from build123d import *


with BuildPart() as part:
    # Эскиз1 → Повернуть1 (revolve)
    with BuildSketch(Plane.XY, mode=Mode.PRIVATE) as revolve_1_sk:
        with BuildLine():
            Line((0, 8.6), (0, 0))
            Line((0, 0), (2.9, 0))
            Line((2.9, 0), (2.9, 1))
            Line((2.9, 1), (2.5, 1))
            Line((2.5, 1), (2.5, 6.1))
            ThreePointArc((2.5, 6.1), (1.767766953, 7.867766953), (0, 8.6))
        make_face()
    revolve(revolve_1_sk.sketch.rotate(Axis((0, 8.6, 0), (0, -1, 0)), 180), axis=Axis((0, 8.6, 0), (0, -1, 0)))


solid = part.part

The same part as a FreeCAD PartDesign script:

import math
import FreeCAD as App
import Part
import Sketcher
from FreeCAD import Vector

doc = App.newDocument("Part")
body = doc.addObject("PartDesign::Body", "Body")

# Sketch on XY plane
sketch1 = body.newObject("Sketcher::SketchObject", "Sketch")
sketch1.AttachmentSupport = (doc.getObject("XY_Plane"), [""])
sketch1.MapMode = "FlatFace"
sketch1.addGeometry([
    Part.LineSegment(Vector(0, 8.6, 0), Vector(0, 0, 0)),  # 0
    Part.LineSegment(Vector(0, 0, 0), Vector(2.9, 0, 0)),  # 1
    Part.LineSegment(Vector(2.9, 0, 0), Vector(2.9, 1, 0)),  # 2
    Part.LineSegment(Vector(2.9, 1, 0), Vector(2.5, 1, 0)),  # 3
    Part.LineSegment(Vector(2.5, 1, 0), Vector(2.5, 6.1, 0)),  # 4
    Part.ArcOfCircle(Part.Circle(Vector(0, 6.1, 0), Vector(0, 0, 1), 2.5), math.radians(0), math.radians(90)),  # 5
], False)
sketch1.addConstraint([
    Sketcher.Constraint("Coincident", 0, 2, 1, 1),
    Sketcher.Constraint("Coincident", 1, 2, 2, 1),
    Sketcher.Constraint("Coincident", 2, 2, 3, 1),
    Sketcher.Constraint("Coincident", 3, 2, 4, 1),
    Sketcher.Constraint("Tangent", 4, 2, 5, 1),
    Sketcher.Constraint("Coincident", 5, 2, 0, 1),
    Sketcher.Constraint("Vertical", 0),
    Sketcher.Constraint("Horizontal", 1),
    Sketcher.Constraint("Vertical", 2),
    Sketcher.Constraint("Horizontal", 3),
    Sketcher.Constraint("Vertical", 4),
    Sketcher.Constraint("Coincident", 0, 2, -1, 1),
    Sketcher.Constraint("PointOnObject", 5, 3, -2),
    Sketcher.Constraint("Radius", 5, 2.5),
    Sketcher.Constraint("DistanceY", 2, 1, 2, 2, 1.0),
    Sketcher.Constraint("DistanceX", 1, 1, 1, 2, 2.9),
    Sketcher.Constraint("DistanceY", 0, 2, 0, 1, 8.6),
])
revolution = body.newObject("PartDesign::Revolution", "Revolution")
revolution.Profile = sketch1
revolution.ReferenceAxis = (sketch1, ["V_Axis"])
revolution.Angle = 360

doc.recompute()
